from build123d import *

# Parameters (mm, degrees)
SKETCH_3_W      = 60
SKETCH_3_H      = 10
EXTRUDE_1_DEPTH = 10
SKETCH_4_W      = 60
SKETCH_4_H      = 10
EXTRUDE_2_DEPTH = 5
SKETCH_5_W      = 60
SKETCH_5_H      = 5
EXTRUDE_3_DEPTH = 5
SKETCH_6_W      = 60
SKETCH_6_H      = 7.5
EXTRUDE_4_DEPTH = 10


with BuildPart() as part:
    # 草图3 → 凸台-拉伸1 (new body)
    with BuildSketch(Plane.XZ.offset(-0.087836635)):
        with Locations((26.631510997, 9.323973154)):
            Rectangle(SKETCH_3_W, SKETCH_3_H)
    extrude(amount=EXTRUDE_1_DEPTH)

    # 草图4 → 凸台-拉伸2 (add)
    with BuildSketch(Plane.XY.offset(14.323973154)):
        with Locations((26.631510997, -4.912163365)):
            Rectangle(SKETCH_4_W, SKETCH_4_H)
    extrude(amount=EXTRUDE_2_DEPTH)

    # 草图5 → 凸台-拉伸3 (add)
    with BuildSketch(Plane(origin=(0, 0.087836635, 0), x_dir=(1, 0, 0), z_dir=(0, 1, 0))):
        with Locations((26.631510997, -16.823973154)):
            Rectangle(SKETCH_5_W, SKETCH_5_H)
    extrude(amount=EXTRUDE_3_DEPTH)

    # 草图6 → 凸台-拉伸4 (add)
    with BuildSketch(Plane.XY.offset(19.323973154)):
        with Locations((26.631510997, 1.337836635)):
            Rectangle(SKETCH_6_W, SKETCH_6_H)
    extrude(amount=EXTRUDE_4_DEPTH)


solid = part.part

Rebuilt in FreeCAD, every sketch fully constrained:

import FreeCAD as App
import Part
import Sketcher
from FreeCAD import Vector


def add_polygon(sketch, points):
    """Adds a closed chain of lines whose ends are joined by coincident constraints."""
    first, n = sketch.GeometryCount, len(points)
    for a, b in zip(points, points[1:] + points[:1]):
        sketch.addGeometry(Part.LineSegment(App.Vector(*a, 0), App.Vector(*b, 0)), False)
    for i in range(n):
        sketch.addConstraint(Sketcher.Constraint("Coincident", first + i, 2, first + (i + 1) % n, 1))

doc = App.newDocument("Part")
body = doc.addObject("PartDesign::Body", "Body")

# Sketch on XZ plane
sketch1 = doc.addObject("Sketcher::SketchObject", "Sketch")
body.addObject(sketch1)
sketch1.AttachmentSupport = (doc.XZ_Plane, [""])
sketch1.MapMode = "FlatFace"
sketch1.AttachmentOffset = App.Placement(Vector(0, 0, -0.087837), App.Rotation())
add_polygon(sketch1, [(-3.368489, 14.323973), (-3.368489, 4.323973), (56.631511, 4.323973), (56.631511, 14.323973)])  # lines 0-3
sketch1.addConstraint(Sketcher.Constraint("Vertical", 0))
sketch1.addConstraint(Sketcher.Constraint("Horizontal", 1))
sketch1.addConstraint(Sketcher.Constraint("Vertical", 2))
sketch1.addConstraint(Sketcher.Constraint("Horizontal", 3))
sketch1.addConstraint(Sketcher.Constraint("DistanceX", 1, 1, 1, 2, 60.0))
sketch1.addConstraint(Sketcher.Constraint("DistanceY", 0, 2, 0, 1, 10.0))
sketch1.addConstraint(Sketcher.Constraint("DistanceX", 0, 2, -1, 1, 3.368489))
sketch1.addConstraint(Sketcher.Constraint("DistanceY", -1, 1, 0, 2, 4.323973))
pad1 = doc.addObject("PartDesign::Pad", "Pad")
body.addObject(pad1)
pad1.Profile = sketch1
pad1.Length = 10

# Sketch on XY plane
sketch2 = doc.addObject("Sketcher::SketchObject", "Sketch001")
body.addObject(sketch2)
sketch2.AttachmentSupport = (doc.XY_Plane, [""])
sketch2.MapMode = "FlatFace"
sketch2.AttachmentOffset = App.Placement(Vector(0, 0, 14.323973), App.Rotation())
add_polygon(sketch2, [(-3.368489, 0.087837), (-3.368489, -9.912163), (56.631511, -9.912163), (56.631511, 0.087837)])  # lines 0-3
sketch2.addConstraint(Sketcher.Constraint("Vertical", 0))
sketch2.addConstraint(Sketcher.Constraint("Horizontal", 1))
sketch2.addConstraint(Sketcher.Constraint("Vertical", 2))
sketch2.addConstraint(Sketcher.Constraint("Horizontal", 3))
sketch2.addConstraint(Sketcher.Constraint("DistanceX", 1, 1, 1, 2, 60.0))
sketch2.addConstraint(Sketcher.Constraint("DistanceY", 0, 2, 0, 1, 10.0))
sketch2.addConstraint(Sketcher.Constraint("DistanceX", 0, 2, -1, 1, 3.368489))
sketch2.addConstraint(Sketcher.Constraint("DistanceY", 0, 2, -1, 1, 9.912163))
pad2 = doc.addObject("PartDesign::Pad", "Pad001")
body.addObject(pad2)
pad2.Profile = sketch2
pad2.Length = 5

# Sketch on XZ plane
sketch3 = doc.addObject("Sketcher::SketchObject", "Sketch002")
body.addObject(sketch3)
sketch3.AttachmentSupport = (doc.XZ_Plane, [""])
sketch3.MapMode = "FlatFace"
sketch3.AttachmentOffset = App.Placement(Vector(0, 0, -0.087837), App.Rotation())
add_polygon(sketch3, [(-3.368489, 14.323973), (-3.368489, 19.323973), (56.631511, 19.323973), (56.631511, 14.323973)])  # lines 0-3
sketch3.addConstraint(Sketcher.Constraint("Vertical", 0))
sketch3.addConstraint(Sketcher.Constraint("Horizontal", 1))
sketch3.addConstraint(Sketcher.Constraint("Vertical", 2))
sketch3.addConstraint(Sketcher.Constraint("Horizontal", 3))
sketch3.addConstraint(Sketcher.Constraint("DistanceX", 1, 1, 1, 2, 60.0))
sketch3.addConstraint(Sketcher.Constraint("DistanceY", 0, 1, 0, 2, 5.0))
sketch3.addConstraint(Sketcher.Constraint("DistanceX", 0, 2, -1, 1, 3.368489))
sketch3.addConstraint(Sketcher.Constraint("DistanceY", -1, 1, 0, 2, 19.323973))
pad3 = doc.addObject("PartDesign::Pad", "Pad002")
body.addObject(pad3)
pad3.Profile = sketch3
pad3.Length = 5
pad3.Reversed = True

# Sketch on XY plane
sketch4 = doc.addObject("Sketcher::SketchObject", "Sketch003")
body.addObject(sketch4)
sketch4.AttachmentSupport = (doc.XY_Plane, [""])
sketch4.MapMode = "FlatFace"
sketch4.AttachmentOffset = App.Placement(Vector(0, 0, 19.323973), App.Rotation())
add_polygon(sketch4, [(-3.368489, 5.087837), (-3.368489, -2.412163), (56.631511, -2.412163), (56.631511, 5.087837)])  # lines 0-3
sketch4.addConstraint(Sketcher.Constraint("Vertical", 0))
sketch4.addConstraint(Sketcher.Constraint("Horizontal", 1))
sketch4.addConstraint(Sketcher.Constraint("Vertical", 2))
sketch4.addConstraint(Sketcher.Constraint("Horizontal", 3))
sketch4.addConstraint(Sketcher.Constraint("DistanceX", 1, 1, 1, 2, 60.0))
sketch4.addConstraint(Sketcher.Constraint("DistanceY", 0, 2, 0, 1, 7.5))
sketch4.addConstraint(Sketcher.Constraint("DistanceX", 0, 2, -1, 1, 3.368489))
sketch4.addConstraint(Sketcher.Constraint("DistanceY", 0, 2, -1, 1, 2.412163))
pad4 = doc.addObject("PartDesign::Pad", "Pad003")
body.addObject(pad4)
pad4.Profile = sketch4
pad4.Length = 10

doc.recompute()
